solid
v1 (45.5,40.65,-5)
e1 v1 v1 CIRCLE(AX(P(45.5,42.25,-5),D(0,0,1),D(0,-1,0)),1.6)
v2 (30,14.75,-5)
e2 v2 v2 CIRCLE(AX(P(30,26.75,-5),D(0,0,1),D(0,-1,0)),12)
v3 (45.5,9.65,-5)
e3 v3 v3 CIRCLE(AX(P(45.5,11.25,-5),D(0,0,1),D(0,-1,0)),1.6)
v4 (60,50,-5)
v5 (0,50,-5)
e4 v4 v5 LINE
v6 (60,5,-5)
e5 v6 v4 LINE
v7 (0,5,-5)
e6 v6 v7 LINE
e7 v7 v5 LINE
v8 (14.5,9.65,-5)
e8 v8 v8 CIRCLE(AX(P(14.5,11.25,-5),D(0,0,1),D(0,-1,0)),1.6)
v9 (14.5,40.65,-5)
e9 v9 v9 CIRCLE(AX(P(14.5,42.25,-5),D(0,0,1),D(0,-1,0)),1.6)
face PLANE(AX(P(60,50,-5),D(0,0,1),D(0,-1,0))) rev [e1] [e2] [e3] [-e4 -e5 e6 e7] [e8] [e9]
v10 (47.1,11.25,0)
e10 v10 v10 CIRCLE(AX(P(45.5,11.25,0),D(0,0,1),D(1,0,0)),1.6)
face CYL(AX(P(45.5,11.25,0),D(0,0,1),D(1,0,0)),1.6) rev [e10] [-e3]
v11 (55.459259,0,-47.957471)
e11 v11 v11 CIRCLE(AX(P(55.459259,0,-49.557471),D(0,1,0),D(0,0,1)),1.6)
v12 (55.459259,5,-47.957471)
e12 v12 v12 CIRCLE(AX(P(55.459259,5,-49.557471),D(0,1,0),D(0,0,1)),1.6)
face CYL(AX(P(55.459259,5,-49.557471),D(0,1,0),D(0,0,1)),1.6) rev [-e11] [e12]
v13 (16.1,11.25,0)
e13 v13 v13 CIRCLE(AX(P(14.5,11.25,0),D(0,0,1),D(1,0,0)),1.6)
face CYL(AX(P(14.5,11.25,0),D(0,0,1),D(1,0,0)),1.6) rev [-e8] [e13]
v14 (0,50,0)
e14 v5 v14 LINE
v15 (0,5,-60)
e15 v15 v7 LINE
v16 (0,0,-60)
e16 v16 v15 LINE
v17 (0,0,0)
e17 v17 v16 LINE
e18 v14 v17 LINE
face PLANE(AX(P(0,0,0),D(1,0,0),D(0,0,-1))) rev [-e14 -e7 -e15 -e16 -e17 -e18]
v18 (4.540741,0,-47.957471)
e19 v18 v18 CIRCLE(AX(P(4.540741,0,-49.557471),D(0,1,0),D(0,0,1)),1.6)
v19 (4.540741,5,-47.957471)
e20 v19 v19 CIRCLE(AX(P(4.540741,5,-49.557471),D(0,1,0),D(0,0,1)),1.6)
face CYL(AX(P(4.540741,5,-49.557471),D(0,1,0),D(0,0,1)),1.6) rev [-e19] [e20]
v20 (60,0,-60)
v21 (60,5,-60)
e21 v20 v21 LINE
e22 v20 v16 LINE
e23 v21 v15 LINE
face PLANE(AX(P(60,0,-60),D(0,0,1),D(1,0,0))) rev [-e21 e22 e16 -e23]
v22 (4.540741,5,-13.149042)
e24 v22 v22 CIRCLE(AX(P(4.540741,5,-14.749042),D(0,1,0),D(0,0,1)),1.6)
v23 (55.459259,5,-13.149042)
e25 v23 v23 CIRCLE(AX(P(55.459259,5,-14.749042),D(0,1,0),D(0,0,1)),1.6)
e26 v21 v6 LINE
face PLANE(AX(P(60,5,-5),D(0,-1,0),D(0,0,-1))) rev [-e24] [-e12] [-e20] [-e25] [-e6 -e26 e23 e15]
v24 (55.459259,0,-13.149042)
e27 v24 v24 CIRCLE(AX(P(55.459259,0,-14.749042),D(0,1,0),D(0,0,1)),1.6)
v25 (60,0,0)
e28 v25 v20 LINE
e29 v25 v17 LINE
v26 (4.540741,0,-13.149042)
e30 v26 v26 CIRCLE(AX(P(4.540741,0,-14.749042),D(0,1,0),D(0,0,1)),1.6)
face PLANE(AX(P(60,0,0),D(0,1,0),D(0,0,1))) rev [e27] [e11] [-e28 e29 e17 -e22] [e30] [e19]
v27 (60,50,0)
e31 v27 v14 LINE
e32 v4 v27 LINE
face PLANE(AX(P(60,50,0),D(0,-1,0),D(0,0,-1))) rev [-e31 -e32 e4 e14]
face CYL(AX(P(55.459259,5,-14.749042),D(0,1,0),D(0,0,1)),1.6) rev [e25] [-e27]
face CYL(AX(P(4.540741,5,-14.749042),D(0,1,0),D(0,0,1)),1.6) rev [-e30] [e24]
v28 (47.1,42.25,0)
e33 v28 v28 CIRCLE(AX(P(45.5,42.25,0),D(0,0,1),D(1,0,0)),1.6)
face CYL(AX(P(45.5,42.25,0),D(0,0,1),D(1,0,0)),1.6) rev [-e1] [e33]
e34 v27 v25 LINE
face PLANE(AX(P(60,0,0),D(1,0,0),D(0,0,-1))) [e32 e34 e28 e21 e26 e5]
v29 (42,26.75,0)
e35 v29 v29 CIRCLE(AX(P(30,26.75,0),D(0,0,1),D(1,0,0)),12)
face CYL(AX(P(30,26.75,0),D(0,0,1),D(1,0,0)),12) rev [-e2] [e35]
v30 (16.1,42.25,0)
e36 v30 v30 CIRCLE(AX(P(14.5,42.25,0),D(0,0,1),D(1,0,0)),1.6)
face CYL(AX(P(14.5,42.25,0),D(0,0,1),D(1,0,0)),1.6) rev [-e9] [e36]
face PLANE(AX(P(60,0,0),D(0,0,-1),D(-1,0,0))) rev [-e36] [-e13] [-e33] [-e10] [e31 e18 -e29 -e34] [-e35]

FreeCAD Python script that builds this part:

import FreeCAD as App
import Part
import Sketcher

doc = App.newDocument("Part")
params = doc.addObject("Spreadsheet::Sheet", "Params")
for row, (alias, value) in enumerate([
    ("sketch1_width", "50 mm"),
    ("sketch1_width2", "5 mm"),
    ("sketch1_height", "60 mm"),
    ("pad1_length", "60 mm"),
    ("sketch2_diameter", "24 mm"),
    ("hole_diameter", "24 mm"),
    ("sketch3_diameter", "3.2 mm"),
    ("hole2_diameter", "3.2 mm"),
    ("sketch4_diameter", "3.2 mm"),
    ("hole3_diameter", "3.2 mm"),
], start=1):
    params.set(f"A{row}", alias)
    params.set(f"B{row}", "=" + value)
    params.setAlias(f"B{row}", alias)

body = doc.addObject("PartDesign::Body", "Body")

# Sketch on YZ plane
sketch1 = body.newObject("Sketcher::SketchObject", "Sketch")
sketch1.AttachmentSupport = (doc.getObject("YZ_Plane"), [""])
sketch1.MapMode = "FlatFace"
sketch1.addGeometry([
    Part.LineSegment(App.Vector(50, 0, 0), App.Vector(0, 0, 0)),  # 0
    Part.LineSegment(App.Vector(0, 0, 0), App.Vector(0, -60, 0)),  # 1
    Part.LineSegment(App.Vector(0, -60, 0), App.Vector(5, -60, 0)),  # 2
    Part.LineSegment(App.Vector(5, -60, 0), App.Vector(5, -5, 0)),  # 3
    Part.LineSegment(App.Vector(5, -5, 0), App.Vector(50, -5, 0)),  # 4
    Part.LineSegment(App.Vector(50, -5, 0), App.Vector(50, 0, 0)),  # 5
], False)
sketch1.addConstraint([
    Sketcher.Constraint("Coincident", 0, 2, 1, 1),
    Sketcher.Constraint("Coincident", 1, 2, 2, 1),
    Sketcher.Constraint("Coincident", 2, 2, 3, 1),
    Sketcher.Constraint("Coincident", 3, 2, 4, 1),
    Sketcher.Constraint("Coincident", 4, 2, 5, 1),
    Sketcher.Constraint("Coincident", 5, 2, 0, 1),
    Sketcher.Constraint("Horizontal", 0),
    Sketcher.Constraint("Vertical", 1),
    Sketcher.Constraint("Horizontal", 2),
    Sketcher.Constraint("Vertical", 3),
    Sketcher.Constraint("Horizontal", 4),
    Sketcher.Constraint("Vertical", 5),
    Sketcher.Constraint("Coincident", 0, 2, -1, 1),
    Sketcher.Constraint("Equal", 2, 5),
    Sketcher.Constraint("DistanceX", 0, 2, 0, 1, 50.0),
    Sketcher.Constraint("DistanceX", 2, 1, 2, 2, 5.0),
    Sketcher.Constraint("DistanceY", 1, 2, 1, 1, 60.0),
])
sketch1.setExpression("Constraints[14]", "Params.sketch1_width")
sketch1.setExpression("Constraints[15]", "Params.sketch1_width2")
sketch1.setExpression("Constraints[16]", "Params.sketch1_height")
pad1 = body.newObject("PartDesign::Pad", "Pad")
pad1.Profile = sketch1
pad1.setExpression("Length", "Params.pad1_length")

# Sketch on XY plane
sketch2 = body.newObject("Sketcher::SketchObject", "Sketch001")
sketch2.AttachmentSupport = (doc.getObject("XY_Plane"), [""])
sketch2.MapMode = "FlatFace"
sketch2.addGeometry(Part.Circle(App.Vector(30, 27, 0), App.Vector(0, 0, 1), 12), False)
sketch2.addConstraint([
    Sketcher.Constraint("Diameter", 0, 24.0),
    Sketcher.Constraint("DistanceX", -1, 1, 0, 3, 30.0),
    Sketcher.Constraint("DistanceY", -1, 1, 0, 3, 26.75),
])
sketch2.setExpression("Constraints[0]", "Params.sketch2_diameter")
doc.recompute()
hole = body.newObject("PartDesign::Hole", "Hole")
hole.Profile = sketch2
hole.ThreadType = "None"
hole.setExpression("Diameter", "Params.hole_diameter")
hole.DepthType = "ThroughAll"

# Sketch on XY plane
sketch3 = body.newObject("Sketcher::SketchObject", "Sketch002")
sketch3.AttachmentSupport = (doc.getObject("XY_Plane"), [""])
sketch3.MapMode = "FlatFace"
sketch3.addGeometry([
    Part.Circle(App.Vector(14.5, 42.2, 0), App.Vector(0, 0, 1), 1.6),
    Part.Circle(App.Vector(45.5, 42.2, 0), App.Vector(0, 0, 1), 1.6),
    Part.Circle(App.Vector(45.5, 11.2, 0), App.Vector(0, 0, 1), 1.6),
    Part.Circle(App.Vector(14.5, 11.2, 0), App.Vector(0, 0, 1), 1.6),
], False)
sketch3.addConstraint([
    Sketcher.Constraint("Equal", 0, 1),
    Sketcher.Constraint("Equal", 1, 2),
    Sketcher.Constraint("Equal", 2, 3),
    Sketcher.Constraint("Horizontal", 0, 3, 1, 3),
    Sketcher.Constraint("Horizontal", 2, 3, 3, 3),
    Sketcher.Constraint("Vertical", 1, 3, 2, 3),
    Sketcher.Constraint("Vertical", 0, 3, 3, 3),
    Sketcher.Constraint("Diameter", 0, 3.2),
    Sketcher.Constraint("DistanceX", 0, 3, 1, 3, 31.0),
    Sketcher.Constraint("DistanceY", 2, 3, 1, 3, 31.0),
    Sketcher.Constraint("DistanceX", -1, 1, 0, 3, 14.5),
    Sketcher.Constraint("DistanceY", -1, 1, 0, 3, 42.25),
])
sketch3.setExpression("Constraints[7]", "Params.sketch3_diameter")
doc.recompute()
hole2 = body.newObject("PartDesign::Hole", "Hole001")
hole2.Profile = sketch3
hole2.ThreadType = "None"
hole2.setExpression("Diameter", "Params.hole2_diameter")
hole2.DepthType = "ThroughAll"

# Sketch on XZ plane
sketch4 = body.newObject("Sketcher::SketchObject", "Sketch003")
sketch4.AttachmentSupport = (doc.getObject("XZ_Plane"), [""])
sketch4.MapMode = "FlatFace"
sketch4.AttachmentOffset = App.Placement(App.Vector(0, 0, -5), App.Rotation())
sketch4.addGeometry([
    Part.Circle(App.Vector(55.5, -14.7, 0), App.Vector(0, 0, 1), 1.6),
    Part.Circle(App.Vector(55.5, -49.6, 0), App.Vector(0, 0, 1), 1.6),
    Part.Circle(App.Vector(4.5, -14.7, 0), App.Vector(0, 0, 1), 1.6),
    Part.Circle(App.Vector(4.5, -49.6, 0), App.Vector(0, 0, 1), 1.6),
], False)
sketch4.addConstraint([
    Sketcher.Constraint("Equal", 0, 1),
    Sketcher.Constraint("Equal", 1, 2),
    Sketcher.Constraint("Equal", 2, 3),
    Sketcher.Constraint("Horizontal", 0, 3, 2, 3),
    Sketcher.Constraint("Horizontal", 1, 3, 3, 3),
    Sketcher.Constraint("Vertical", 0, 3, 1, 3),
    Sketcher.Constraint("Vertical", 2, 3, 3, 3),
    Sketcher.Constraint("Diameter", 0, 3.2),
    Sketcher.Constraint("DistanceX", -1, 1, 0, 3, 55.459259),
    Sketcher.Constraint("DistanceY", 1, 3, -1, 1, 49.557471),
    Sketcher.Constraint("DistanceX", -1, 1, 2, 3, 4.540741),
    Sketcher.Constraint("DistanceY", 1, 3, 0, 3, 34.808429),
])
sketch4.setExpression("Constraints[7]", "Params.sketch4_diameter")
doc.recompute()
hole3 = body.newObject("PartDesign::Hole", "Hole002")
hole3.Profile = sketch4
hole3.ThreadType = "None"
hole3.setExpression("Diameter", "Params.hole3_diameter")
hole3.DepthType = "ThroughAll"
hole3.Reversed = True

doc.recompute()
